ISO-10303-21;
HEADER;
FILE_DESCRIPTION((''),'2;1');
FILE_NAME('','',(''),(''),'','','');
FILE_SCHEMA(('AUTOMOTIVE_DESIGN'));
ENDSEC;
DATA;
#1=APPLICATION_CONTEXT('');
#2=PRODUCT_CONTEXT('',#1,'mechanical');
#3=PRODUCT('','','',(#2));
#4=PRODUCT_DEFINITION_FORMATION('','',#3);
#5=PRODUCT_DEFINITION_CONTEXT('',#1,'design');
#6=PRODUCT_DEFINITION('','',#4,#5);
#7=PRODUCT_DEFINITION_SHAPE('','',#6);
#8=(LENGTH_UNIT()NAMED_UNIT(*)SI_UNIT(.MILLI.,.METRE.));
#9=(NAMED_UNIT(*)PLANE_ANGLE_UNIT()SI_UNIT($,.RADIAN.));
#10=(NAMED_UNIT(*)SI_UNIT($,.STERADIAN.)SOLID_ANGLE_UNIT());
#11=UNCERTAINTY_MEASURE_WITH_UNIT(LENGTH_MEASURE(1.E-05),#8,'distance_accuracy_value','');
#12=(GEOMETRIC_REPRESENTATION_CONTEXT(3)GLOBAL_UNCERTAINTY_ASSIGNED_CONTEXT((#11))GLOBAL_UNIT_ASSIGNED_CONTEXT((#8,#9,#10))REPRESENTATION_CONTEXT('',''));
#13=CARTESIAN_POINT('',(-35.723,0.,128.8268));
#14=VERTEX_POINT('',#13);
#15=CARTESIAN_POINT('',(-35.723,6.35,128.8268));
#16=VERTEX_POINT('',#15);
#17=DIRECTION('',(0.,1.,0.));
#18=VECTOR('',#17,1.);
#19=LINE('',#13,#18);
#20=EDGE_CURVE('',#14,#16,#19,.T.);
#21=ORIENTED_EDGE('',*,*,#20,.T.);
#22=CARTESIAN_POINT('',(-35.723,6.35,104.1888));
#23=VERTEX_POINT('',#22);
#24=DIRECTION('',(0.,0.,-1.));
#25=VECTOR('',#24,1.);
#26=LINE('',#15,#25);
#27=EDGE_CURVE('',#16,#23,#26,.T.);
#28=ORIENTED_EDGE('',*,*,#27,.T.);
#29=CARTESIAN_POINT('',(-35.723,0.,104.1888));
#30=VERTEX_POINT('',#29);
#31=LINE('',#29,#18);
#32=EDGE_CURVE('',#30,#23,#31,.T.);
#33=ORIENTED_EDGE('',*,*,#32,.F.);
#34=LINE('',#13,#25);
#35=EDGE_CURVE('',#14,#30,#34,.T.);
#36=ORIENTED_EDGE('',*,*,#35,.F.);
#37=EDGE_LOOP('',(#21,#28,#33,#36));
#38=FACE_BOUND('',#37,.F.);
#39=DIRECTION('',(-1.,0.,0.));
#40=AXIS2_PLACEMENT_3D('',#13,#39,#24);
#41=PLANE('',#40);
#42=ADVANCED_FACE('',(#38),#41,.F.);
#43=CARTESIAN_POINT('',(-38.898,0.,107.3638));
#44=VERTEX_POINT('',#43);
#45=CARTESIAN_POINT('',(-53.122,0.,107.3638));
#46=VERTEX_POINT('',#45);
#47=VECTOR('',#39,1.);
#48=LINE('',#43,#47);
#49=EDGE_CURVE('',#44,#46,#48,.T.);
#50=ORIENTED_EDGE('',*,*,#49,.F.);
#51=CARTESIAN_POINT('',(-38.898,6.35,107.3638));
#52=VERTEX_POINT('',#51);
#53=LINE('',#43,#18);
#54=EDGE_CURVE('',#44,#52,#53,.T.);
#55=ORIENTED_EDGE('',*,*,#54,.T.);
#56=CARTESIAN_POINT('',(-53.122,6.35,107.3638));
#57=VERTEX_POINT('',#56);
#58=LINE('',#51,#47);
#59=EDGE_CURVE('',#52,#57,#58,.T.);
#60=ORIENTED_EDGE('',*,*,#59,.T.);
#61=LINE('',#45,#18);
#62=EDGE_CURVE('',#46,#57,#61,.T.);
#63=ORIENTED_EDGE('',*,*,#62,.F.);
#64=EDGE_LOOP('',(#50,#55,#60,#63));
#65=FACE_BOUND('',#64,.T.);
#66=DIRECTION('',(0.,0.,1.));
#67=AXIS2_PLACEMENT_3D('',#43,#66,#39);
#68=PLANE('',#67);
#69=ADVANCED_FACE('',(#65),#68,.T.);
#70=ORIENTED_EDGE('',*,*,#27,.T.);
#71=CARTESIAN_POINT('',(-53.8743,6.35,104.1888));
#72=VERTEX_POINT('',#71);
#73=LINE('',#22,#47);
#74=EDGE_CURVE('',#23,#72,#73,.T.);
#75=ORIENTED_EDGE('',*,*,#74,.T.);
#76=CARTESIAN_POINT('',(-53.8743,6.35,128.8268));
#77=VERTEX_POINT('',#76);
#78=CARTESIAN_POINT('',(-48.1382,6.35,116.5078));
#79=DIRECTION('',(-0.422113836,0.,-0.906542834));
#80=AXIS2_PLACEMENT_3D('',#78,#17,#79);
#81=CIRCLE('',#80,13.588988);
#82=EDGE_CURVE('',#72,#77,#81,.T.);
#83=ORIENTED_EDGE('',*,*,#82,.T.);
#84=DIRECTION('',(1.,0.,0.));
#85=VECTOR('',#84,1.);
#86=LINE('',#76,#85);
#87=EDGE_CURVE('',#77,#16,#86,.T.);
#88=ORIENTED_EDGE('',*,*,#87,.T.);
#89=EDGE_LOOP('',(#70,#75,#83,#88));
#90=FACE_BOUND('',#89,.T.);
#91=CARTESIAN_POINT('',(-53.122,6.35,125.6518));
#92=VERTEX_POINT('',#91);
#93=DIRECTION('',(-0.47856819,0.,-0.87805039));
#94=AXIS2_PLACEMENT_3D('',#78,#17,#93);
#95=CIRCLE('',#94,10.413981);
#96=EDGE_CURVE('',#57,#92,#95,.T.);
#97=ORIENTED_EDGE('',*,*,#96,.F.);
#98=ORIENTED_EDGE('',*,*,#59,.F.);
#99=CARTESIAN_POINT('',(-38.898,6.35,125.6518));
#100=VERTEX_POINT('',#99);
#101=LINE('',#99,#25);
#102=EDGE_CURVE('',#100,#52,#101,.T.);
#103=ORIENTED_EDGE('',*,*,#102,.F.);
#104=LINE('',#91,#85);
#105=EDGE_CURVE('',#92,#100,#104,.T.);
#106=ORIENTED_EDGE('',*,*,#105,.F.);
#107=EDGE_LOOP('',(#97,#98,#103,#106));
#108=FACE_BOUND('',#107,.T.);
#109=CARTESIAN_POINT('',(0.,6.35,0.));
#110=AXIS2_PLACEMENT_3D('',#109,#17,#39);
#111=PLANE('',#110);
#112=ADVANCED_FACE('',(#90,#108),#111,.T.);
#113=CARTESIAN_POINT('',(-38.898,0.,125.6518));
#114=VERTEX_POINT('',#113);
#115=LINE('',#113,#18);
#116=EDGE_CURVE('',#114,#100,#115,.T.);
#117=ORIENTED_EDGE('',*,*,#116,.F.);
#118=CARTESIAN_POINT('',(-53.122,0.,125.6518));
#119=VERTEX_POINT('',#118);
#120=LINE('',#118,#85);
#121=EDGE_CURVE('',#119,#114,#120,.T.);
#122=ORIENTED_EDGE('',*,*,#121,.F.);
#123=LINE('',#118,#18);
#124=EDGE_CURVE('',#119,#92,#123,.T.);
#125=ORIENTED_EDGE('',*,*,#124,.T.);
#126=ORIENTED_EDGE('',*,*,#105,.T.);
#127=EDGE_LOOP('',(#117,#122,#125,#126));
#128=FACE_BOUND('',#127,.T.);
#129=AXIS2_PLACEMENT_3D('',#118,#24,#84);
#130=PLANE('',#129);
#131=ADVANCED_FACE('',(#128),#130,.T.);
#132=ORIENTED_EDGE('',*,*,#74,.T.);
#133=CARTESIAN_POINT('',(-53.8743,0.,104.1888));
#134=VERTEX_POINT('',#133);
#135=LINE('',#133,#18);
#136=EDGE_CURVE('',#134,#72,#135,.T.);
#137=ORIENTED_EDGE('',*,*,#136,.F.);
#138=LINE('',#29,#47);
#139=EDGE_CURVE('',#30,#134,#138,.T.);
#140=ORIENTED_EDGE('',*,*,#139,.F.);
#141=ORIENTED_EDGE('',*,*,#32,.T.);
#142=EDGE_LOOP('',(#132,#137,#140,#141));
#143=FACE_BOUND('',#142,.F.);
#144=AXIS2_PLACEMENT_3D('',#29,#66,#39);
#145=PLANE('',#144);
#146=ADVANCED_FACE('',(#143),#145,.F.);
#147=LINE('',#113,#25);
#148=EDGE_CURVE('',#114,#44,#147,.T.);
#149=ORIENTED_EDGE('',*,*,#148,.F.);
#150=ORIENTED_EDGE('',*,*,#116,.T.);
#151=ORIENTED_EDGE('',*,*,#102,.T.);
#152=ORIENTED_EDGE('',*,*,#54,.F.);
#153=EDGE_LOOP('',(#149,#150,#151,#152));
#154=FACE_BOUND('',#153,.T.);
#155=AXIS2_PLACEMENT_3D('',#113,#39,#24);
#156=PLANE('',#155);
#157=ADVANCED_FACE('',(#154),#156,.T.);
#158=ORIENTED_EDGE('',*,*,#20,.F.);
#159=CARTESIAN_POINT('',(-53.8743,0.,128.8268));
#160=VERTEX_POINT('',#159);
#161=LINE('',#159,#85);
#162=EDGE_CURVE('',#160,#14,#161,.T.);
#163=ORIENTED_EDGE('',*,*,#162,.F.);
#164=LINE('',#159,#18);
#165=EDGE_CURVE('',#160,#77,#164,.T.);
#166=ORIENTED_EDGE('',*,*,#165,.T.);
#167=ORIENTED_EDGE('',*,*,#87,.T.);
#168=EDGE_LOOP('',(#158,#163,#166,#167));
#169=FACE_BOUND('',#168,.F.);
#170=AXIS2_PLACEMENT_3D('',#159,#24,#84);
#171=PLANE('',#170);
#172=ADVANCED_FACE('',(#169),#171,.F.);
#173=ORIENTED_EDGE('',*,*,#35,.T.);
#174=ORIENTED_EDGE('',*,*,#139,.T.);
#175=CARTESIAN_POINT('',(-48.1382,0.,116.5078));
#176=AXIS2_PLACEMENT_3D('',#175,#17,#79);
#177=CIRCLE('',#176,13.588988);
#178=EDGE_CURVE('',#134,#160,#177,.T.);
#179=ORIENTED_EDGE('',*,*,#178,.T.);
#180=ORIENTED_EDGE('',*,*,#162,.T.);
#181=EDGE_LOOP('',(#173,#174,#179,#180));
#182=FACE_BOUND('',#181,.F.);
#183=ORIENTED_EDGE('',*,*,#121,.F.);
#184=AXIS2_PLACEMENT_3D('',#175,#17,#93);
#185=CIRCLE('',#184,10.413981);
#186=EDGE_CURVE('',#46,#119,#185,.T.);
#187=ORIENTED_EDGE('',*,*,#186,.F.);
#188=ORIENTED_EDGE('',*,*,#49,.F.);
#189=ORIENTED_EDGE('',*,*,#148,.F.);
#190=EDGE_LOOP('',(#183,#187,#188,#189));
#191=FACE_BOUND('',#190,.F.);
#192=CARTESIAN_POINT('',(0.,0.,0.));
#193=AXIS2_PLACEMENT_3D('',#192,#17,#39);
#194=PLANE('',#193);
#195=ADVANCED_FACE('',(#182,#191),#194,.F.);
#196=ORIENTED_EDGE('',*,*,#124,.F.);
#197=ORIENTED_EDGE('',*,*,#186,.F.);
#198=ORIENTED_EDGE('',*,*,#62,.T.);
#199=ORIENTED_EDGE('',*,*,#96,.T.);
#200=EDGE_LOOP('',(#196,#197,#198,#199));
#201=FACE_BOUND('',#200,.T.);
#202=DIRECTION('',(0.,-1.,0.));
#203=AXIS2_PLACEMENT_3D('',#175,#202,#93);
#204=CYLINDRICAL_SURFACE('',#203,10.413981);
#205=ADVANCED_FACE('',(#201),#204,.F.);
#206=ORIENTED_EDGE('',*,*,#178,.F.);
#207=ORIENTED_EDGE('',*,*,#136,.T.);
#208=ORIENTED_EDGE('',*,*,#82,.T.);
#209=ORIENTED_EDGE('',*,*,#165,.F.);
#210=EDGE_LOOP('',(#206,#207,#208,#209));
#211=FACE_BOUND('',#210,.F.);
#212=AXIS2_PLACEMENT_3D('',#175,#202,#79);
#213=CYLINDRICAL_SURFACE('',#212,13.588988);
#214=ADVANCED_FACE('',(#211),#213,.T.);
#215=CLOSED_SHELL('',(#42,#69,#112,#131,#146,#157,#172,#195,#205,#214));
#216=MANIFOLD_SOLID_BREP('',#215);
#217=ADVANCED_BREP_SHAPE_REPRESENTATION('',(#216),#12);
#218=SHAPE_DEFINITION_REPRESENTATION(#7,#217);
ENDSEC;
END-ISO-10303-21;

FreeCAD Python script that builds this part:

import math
import FreeCAD as App
import Part
import Sketcher

V = App.Vector
Q = App.Units.Quantity

doc = App.newDocument("Part")
params = doc.addObject("Spreadsheet::Sheet", "Params")
for row, (alias, value) in enumerate([
    ("sketch1_radius", "0.41 in"),
    ("sketch1_width", "0.56 in"),
    ("sketch1_height", "0.72 in"),
    ("sketch1_radius2", "0.535 in"),
    ("pad1_length", "0.25 in"),
], start=1):
    params.set(f"A{row}", alias)
    params.set(f"B{row}", "=" + value)
    params.setAlias(f"B{row}", alias)

body = doc.addObject("PartDesign::Body", "Body")

sketch1 = body.newObject("Sketcher::SketchObject", "Sketch")
sketch1.AttachmentSupport = (doc.getObject("XZ_Plane"), [""])
sketch1.MapMode = "FlatFace"
sketch1.addGeometry([
    Part.ArcOfCircle(Part.Circle(V(-48, 117, 0), V(0, 0, 1), 14), math.radians(115), math.radians(245)),
    Part.LineSegment(V(-54, 129, 0), V(-36, 129, 0)),
    Part.LineSegment(V(-36, 129, 0), V(-36, 104, 0)),
    Part.LineSegment(V(-36, 104, 0), V(-54, 104, 0)),
    Part.LineSegment(V(-39, 126, 0), V(-53, 126, 0)),
    Part.ArcOfCircle(Part.Circle(V(-48, 117, 0), V(0, 0, 1), 10), math.radians(119), math.radians(241)),
    Part.LineSegment(V(-53, 107, 0), V(-39, 107, 0)),
    Part.LineSegment(V(-39, 107, 0), V(-39, 126, 0)),
], False)
sketch1.addConstraint([
    Sketcher.Constraint("Coincident", 0, 1, 1, 1),
    Sketcher.Constraint("Coincident", 1, 2, 2, 1),
    Sketcher.Constraint("Coincident", 2, 2, 3, 1),
    Sketcher.Constraint("Coincident", 3, 2, 0, 2),
    Sketcher.Constraint("Coincident", 4, 2, 5, 1),
    Sketcher.Constraint("Coincident", 5, 2, 6, 1),
    Sketcher.Constraint("Coincident", 6, 2, 7, 1),
    Sketcher.Constraint("Coincident", 7, 2, 4, 1),
    Sketcher.Constraint("Horizontal", 1),
    Sketcher.Constraint("Vertical", 2),
    Sketcher.Constraint("Horizontal", 3),
    Sketcher.Constraint("Horizontal", 4),
    Sketcher.Constraint("Horizontal", 6),
    Sketcher.Constraint("Vertical", 7),
    Sketcher.Constraint("Coincident", 5, 3, 0, 3),
    Sketcher.Constraint("Vertical", 0, 1, 3, 2),
    Sketcher.Constraint("Vertical", 4, 2, 5, 2),
    Sketcher.Constraint("Radius", 5, Q("0.41 in")),
    Sketcher.Constraint("DistanceX", 4, 2, 4, 1, Q("0.56 in")),
    Sketcher.Constraint("DistanceY", 7, 1, 7, 2, Q("0.72 in")),
    Sketcher.Constraint("Radius", 0, Q("0.535 in")),
    Sketcher.Constraint("DistanceY", 4, 2, 0, 1, Q("0.125 in")),
    Sketcher.Constraint("DistanceX", 6, 2, 2, 2, Q("0.125 in")),
    Sketcher.Constraint("DistanceX", 0, 3, -1, 1, Q("1.8952 in")),
    Sketcher.Constraint("DistanceY", -1, 1, 0, 3, Q("116.5078 mm")),
])
sketch1.setExpression("Constraints[17]", "Params.sketch1_radius")
sketch1.setExpression("Constraints[18]", "Params.sketch1_width")
sketch1.setExpression("Constraints[19]", "Params.sketch1_height")
sketch1.setExpression("Constraints[20]", "Params.sketch1_radius2")
pad1 = body.newObject("PartDesign::Pad", "Pad")
pad1.Profile = sketch1
pad1.setExpression("Length", "Params.pad1_length")
pad1.Reversed = True

doc.recompute()
